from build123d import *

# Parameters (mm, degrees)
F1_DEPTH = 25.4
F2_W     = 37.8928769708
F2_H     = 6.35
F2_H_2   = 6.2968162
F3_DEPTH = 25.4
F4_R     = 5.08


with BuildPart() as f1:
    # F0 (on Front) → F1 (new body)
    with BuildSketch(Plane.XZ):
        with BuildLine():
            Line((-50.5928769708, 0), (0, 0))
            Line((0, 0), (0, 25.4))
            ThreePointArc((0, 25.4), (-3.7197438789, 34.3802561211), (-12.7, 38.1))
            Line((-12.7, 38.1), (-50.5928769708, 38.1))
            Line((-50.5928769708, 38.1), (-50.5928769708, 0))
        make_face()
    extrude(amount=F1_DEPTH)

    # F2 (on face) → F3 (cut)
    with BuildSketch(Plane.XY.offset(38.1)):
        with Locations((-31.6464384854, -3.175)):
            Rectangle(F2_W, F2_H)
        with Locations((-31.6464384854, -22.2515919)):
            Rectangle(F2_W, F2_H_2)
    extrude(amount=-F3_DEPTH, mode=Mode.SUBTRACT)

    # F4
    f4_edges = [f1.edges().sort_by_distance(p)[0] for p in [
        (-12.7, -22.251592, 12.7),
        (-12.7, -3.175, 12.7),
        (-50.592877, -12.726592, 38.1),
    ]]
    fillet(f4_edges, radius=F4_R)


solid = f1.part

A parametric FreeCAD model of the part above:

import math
import FreeCAD as App
import Part
import Sketcher
Q = App.Units.Quantity


def edges_at(feature, points):
    """Names of the edges that pass closest to the given points."""
    edges = feature.Shape.Edges
    near = lambda p: min(range(len(edges)), key=lambda i: edges[i].distToShape(Part.Vertex(*p))[0])
    return sorted({f"Edge{near(p) + 1}" for p in points})

doc = App.newDocument("Part")
body = doc.addObject("PartDesign::Body", "Body")

# Sketch on XZ plane
sketch1 = body.newObject("Sketcher::SketchObject", "Sketch")
sketch1.AttachmentSupport = (doc.getObject("XZ_Plane"), [""])
sketch1.MapMode = "FlatFace"
sketch1.addGeometry([
    Part.LineSegment(App.Vector(-51, 0, 0), App.Vector(0, 0, 0)),  # 0
    Part.LineSegment(App.Vector(0, 0, 0), App.Vector(0, 25, 0)),  # 1
    Part.ArcOfCircle(Part.Circle(App.Vector(-13, 25, 0), App.Vector(0, 0, 1), 13), math.radians(0), math.radians(90)),  # 2
    Part.LineSegment(App.Vector(-13, 38, 0), App.Vector(-51, 38, 0)),  # 3
    Part.LineSegment(App.Vector(-51, 38, 0), App.Vector(-51, 0, 0)),  # 4
], False)
sketch1.addConstraint([
    Sketcher.Constraint("Coincident", 0, 2, 1, 1),
    Sketcher.Constraint("Tangent", 1, 2, 2, 1),
    Sketcher.Constraint("Tangent", 2, 2, 3, 1),
    Sketcher.Constraint("Coincident", 3, 2, 4, 1),
    Sketcher.Constraint("Coincident", 4, 2, 0, 1),
    Sketcher.Constraint("Horizontal", 0),
    Sketcher.Constraint("Vertical", 1),
    Sketcher.Constraint("Horizontal", 3),
    Sketcher.Constraint("Vertical", 4),
    Sketcher.Constraint("Coincident", 0, 2, -1, 1),
    Sketcher.Constraint("Radius", 2, Q("0.5 in")),
    Sketcher.Constraint("DistanceY", 1, 1, 1, 2, Q("1 in")),
    Sketcher.Constraint("DistanceX", 0, 1, 0, 2, 50.592877),
])
pad1 = body.newObject("PartDesign::Pad", "Pad")
pad1.Profile = sketch1
pad1.Length = Q("1 in")

# Sketch on XY plane
sketch2 = body.newObject("Sketcher::SketchObject", "Sketch001")
sketch2.AttachmentSupport = (doc.getObject("XY_Plane"), [""])
sketch2.MapMode = "FlatFace"
sketch2.AttachmentOffset = App.Placement(App.Vector(0, 0, 1.5 * 25.4), App.Rotation())
sketch2.addGeometry([
    Part.LineSegment(App.Vector(-51, 0, 0), App.Vector(-51, -6, 0)),  # 0
    Part.LineSegment(App.Vector(-51, -6, 0), App.Vector(-13, -6, 0)),  # 1
    Part.LineSegment(App.Vector(-13, -6, 0), App.Vector(-13, 0, 0)),  # 2
    Part.LineSegment(App.Vector(-13, 0, 0), App.Vector(-51, 0, 0)),  # 3
    Part.LineSegment(App.Vector(-51, -19, 0), App.Vector(-51, -25, 0)),  # 4
    Part.LineSegment(App.Vector(-51, -25, 0), App.Vector(-13, -25, 0)),  # 5
    Part.LineSegment(App.Vector(-13, -25, 0), App.Vector(-13, -19, 0)),  # 6
    Part.LineSegment(App.Vector(-13, -19, 0), App.Vector(-51, -19, 0)),  # 7
], False)
sketch2.addConstraint([
    Sketcher.Constraint("Coincident", 0, 2, 1, 1),
    Sketcher.Constraint("Coincident", 1, 2, 2, 1),
    Sketcher.Constraint("Coincident", 2, 2, 3, 1),
    Sketcher.Constraint("Coincident", 3, 2, 0, 1),
    Sketcher.Constraint("Coincident", 4, 2, 5, 1),
    Sketcher.Constraint("Coincident", 5, 2, 6, 1),
    Sketcher.Constraint("Coincident", 6, 2, 7, 1),
    Sketcher.Constraint("Coincident", 7, 2, 4, 1),
    Sketcher.Constraint("Vertical", 0),
    Sketcher.Constraint("Horizontal", 1),
    Sketcher.Constraint("Vertical", 2),
    Sketcher.Constraint("Horizontal", 3),
    Sketcher.Constraint("Vertical", 4),
    Sketcher.Constraint("Horizontal", 5),
    Sketcher.Constraint("Vertical", 6),
    Sketcher.Constraint("Horizontal", 7),
    Sketcher.Constraint("PointOnObject", 2, 2, -1),
    Sketcher.Constraint("Vertical", 3, 2, 4, 2),
    Sketcher.Constraint("Vertical", 2, 2, 5, 2),
    Sketcher.Constraint("DistanceY", 4, 2, -1, 1, Q("1 in")),
    Sketcher.Constraint("DistanceY", 0, 2, 0, 1, Q("0.25 in")),
    Sketcher.Constraint("DistanceX", 1, 2, -1, 1, Q("0.5 in")),
    Sketcher.Constraint("DistanceX", 1, 1, 1, 2, 37.892877),
    Sketcher.Constraint("DistanceY", 4, 2, 4, 1, 6.296816),
])
pocket1 = body.newObject("PartDesign::Pocket", "Pocket")
pocket1.Profile = sketch2
pocket1.Length = Q("1 in")
doc.recompute()

fillet = body.newObject("PartDesign::Fillet", "Fillet")
fillet.Base = (pocket1, edges_at(pocket1, [(-12.7, -22.252, 12.7), (-12.7, -3.175, 12.7), (-50.593, -12.727, 38.1)]))
fillet.Radius = Q("0.2 in")

doc.recompute()
